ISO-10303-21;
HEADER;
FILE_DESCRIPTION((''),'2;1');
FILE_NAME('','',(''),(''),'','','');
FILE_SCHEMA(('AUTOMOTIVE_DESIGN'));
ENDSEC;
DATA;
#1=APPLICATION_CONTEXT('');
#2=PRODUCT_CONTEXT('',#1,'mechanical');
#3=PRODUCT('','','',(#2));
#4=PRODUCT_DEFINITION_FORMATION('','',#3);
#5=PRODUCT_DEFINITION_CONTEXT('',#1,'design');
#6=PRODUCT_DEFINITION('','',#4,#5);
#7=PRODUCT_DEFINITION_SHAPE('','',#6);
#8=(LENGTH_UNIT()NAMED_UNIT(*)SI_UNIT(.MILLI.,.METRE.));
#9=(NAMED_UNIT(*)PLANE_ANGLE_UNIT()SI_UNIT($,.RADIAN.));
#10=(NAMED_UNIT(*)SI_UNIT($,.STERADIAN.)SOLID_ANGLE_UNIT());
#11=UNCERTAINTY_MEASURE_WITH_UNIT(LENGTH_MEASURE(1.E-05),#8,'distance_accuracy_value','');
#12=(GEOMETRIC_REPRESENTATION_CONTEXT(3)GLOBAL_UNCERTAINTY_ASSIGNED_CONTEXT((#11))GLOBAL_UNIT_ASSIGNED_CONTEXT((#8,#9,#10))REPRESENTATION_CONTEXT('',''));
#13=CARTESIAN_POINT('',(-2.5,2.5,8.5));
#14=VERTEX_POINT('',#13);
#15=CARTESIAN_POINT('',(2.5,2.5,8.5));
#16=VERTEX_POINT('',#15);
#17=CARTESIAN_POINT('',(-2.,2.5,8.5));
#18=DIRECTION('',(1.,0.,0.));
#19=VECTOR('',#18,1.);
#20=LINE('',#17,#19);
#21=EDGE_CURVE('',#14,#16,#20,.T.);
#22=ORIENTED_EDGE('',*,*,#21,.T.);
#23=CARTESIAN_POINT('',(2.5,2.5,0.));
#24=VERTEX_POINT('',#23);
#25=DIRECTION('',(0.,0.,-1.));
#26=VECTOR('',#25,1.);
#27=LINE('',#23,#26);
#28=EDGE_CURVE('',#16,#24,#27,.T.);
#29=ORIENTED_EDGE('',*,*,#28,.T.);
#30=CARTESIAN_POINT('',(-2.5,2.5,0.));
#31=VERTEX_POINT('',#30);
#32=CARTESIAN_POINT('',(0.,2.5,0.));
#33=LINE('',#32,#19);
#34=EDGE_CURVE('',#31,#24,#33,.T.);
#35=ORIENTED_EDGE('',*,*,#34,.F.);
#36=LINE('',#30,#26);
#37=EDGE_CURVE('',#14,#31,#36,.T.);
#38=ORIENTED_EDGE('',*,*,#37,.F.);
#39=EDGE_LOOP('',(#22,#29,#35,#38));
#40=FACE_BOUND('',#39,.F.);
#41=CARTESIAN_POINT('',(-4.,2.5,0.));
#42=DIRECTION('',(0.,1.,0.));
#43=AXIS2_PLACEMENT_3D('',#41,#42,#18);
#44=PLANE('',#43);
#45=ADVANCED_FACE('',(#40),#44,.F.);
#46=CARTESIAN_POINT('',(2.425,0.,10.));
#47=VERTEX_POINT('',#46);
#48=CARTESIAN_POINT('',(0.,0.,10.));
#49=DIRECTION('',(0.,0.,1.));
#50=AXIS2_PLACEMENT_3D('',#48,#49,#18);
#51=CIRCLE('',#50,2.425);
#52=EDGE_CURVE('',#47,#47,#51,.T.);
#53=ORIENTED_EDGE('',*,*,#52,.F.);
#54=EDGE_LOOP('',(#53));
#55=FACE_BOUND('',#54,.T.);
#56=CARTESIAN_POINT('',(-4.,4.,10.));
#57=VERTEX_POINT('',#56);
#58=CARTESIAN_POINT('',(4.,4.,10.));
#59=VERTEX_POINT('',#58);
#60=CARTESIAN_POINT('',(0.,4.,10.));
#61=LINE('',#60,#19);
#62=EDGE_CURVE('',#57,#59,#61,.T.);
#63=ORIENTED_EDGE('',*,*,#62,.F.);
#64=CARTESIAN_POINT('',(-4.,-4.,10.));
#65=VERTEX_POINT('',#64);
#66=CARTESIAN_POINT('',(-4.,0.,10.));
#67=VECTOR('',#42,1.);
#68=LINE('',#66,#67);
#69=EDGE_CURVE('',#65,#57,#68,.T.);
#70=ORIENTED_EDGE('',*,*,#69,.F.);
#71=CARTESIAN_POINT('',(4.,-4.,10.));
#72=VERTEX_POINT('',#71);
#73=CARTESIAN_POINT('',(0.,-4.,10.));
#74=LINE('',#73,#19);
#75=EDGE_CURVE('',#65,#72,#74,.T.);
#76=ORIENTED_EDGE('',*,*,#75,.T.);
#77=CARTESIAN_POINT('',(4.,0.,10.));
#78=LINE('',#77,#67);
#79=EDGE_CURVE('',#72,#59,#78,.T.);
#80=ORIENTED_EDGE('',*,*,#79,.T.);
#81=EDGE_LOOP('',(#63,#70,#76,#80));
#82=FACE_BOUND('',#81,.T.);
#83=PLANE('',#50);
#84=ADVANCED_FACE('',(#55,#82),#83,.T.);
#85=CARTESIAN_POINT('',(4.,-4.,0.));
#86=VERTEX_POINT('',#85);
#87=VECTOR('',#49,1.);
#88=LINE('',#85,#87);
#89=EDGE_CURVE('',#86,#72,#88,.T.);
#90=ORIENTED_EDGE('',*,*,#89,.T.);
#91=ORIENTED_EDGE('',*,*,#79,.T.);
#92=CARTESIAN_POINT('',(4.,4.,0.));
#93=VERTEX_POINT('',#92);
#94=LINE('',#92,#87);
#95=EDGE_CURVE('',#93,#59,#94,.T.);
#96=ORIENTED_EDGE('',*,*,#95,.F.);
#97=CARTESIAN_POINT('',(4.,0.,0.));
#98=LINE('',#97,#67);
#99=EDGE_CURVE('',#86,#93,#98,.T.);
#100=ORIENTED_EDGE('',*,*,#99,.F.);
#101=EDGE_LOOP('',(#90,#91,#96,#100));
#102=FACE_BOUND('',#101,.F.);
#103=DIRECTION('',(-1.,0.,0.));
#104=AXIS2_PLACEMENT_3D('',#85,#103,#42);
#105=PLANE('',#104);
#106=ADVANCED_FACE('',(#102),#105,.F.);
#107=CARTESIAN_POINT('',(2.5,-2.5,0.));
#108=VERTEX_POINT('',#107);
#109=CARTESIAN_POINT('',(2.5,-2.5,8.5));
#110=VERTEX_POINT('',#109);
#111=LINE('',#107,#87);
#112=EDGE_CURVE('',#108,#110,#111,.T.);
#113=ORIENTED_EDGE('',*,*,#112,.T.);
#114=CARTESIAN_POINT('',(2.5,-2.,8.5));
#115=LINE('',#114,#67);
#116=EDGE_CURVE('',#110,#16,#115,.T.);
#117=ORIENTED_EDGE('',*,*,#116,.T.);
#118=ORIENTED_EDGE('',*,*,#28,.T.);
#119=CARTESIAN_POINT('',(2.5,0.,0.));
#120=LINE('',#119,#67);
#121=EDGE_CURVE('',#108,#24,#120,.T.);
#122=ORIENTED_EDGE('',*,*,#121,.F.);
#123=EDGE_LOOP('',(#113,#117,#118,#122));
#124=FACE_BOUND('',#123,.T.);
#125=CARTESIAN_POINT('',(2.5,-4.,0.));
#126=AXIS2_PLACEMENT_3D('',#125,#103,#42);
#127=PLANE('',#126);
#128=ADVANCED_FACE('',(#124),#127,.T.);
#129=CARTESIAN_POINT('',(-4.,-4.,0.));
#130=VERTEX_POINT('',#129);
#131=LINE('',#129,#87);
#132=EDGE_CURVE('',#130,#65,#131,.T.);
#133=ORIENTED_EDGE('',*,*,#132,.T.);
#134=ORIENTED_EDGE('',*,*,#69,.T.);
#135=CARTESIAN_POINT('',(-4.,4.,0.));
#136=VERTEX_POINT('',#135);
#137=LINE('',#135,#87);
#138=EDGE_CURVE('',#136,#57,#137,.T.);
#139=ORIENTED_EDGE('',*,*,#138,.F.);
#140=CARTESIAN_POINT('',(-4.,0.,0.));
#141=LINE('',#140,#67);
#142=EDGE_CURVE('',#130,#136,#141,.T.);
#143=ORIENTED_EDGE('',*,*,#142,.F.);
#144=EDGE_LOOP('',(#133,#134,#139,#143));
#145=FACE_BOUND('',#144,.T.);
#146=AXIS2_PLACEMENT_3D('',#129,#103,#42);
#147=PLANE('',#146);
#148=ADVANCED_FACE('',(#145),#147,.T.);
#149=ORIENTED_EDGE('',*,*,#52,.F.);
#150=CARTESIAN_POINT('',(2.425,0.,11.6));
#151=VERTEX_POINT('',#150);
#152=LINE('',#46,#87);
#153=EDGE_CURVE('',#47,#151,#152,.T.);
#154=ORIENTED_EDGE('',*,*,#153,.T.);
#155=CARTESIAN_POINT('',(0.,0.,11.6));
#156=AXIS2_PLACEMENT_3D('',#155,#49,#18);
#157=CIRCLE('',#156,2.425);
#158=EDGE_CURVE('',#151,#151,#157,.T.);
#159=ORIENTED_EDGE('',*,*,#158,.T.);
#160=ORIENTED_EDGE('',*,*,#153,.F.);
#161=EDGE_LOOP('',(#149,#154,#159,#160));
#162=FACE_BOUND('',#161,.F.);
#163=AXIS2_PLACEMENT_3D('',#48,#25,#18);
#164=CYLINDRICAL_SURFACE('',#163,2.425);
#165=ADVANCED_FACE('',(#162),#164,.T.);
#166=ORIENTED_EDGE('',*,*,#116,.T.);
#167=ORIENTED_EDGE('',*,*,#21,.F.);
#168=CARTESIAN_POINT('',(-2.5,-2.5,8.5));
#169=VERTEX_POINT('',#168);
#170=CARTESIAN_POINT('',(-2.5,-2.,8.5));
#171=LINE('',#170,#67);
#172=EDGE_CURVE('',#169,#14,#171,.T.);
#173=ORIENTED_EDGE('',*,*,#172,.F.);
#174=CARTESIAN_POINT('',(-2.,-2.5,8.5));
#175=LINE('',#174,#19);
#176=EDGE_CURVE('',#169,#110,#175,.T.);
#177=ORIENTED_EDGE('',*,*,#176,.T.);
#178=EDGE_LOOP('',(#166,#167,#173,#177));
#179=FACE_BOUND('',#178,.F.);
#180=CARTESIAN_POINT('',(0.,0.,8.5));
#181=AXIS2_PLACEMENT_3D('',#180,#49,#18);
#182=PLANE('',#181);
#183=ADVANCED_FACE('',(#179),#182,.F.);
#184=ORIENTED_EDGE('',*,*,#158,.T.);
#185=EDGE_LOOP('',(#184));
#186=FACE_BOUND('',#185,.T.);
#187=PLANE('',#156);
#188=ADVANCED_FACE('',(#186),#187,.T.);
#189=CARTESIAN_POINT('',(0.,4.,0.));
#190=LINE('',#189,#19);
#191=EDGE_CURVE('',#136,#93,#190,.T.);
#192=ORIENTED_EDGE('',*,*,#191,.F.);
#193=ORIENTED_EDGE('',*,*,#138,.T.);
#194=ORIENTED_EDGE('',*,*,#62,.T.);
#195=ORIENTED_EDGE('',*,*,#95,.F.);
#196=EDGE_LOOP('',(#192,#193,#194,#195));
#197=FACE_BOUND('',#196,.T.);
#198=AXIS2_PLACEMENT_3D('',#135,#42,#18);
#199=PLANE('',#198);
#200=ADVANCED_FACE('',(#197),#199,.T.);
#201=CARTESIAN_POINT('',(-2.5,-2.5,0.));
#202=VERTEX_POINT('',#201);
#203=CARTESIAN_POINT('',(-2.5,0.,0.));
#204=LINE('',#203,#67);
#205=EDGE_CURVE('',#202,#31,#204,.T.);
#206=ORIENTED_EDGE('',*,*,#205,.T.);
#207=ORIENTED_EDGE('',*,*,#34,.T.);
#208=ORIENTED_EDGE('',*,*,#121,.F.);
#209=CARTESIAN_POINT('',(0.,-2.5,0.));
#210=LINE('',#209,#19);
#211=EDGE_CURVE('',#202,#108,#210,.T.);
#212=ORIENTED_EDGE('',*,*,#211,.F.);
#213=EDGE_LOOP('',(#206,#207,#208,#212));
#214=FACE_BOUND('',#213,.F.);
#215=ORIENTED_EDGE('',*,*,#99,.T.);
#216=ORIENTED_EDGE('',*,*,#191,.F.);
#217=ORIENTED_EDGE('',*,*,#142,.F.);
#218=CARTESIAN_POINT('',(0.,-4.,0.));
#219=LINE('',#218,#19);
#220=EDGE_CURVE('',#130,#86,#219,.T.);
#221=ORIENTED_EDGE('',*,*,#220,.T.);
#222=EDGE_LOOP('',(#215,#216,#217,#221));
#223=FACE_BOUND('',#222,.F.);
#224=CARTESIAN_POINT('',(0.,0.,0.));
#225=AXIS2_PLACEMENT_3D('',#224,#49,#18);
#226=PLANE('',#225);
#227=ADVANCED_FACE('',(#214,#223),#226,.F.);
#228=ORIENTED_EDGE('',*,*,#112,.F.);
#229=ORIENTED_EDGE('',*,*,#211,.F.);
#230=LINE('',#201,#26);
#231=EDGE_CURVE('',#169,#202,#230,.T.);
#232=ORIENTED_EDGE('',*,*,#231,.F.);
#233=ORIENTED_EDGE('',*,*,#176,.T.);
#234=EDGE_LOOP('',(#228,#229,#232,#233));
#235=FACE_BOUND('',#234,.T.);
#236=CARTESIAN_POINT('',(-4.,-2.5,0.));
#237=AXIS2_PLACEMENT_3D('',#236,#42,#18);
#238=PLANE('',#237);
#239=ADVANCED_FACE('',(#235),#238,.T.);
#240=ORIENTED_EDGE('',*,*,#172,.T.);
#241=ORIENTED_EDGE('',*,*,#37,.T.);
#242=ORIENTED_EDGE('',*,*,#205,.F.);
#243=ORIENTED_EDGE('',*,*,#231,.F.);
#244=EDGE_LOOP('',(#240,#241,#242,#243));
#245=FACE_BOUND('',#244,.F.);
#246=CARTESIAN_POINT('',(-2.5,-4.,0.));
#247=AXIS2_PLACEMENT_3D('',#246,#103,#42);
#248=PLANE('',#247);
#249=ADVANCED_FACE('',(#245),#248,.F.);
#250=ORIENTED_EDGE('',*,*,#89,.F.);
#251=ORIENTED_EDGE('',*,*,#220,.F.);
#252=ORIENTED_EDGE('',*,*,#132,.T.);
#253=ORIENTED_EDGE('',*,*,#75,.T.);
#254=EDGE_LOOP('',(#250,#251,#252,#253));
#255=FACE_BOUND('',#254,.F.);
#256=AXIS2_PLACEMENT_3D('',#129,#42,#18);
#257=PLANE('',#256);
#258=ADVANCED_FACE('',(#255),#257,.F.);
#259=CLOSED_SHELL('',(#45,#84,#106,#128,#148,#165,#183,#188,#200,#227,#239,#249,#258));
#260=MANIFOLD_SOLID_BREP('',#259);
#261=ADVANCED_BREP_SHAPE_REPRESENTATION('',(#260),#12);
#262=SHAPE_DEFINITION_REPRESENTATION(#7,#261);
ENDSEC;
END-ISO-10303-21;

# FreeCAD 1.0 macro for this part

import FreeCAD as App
import Part
import Sketcher


def faces_at(feature, points):
    """Names of the faces that lie closest to the given points."""
    faces = feature.Shape.Faces
    near = lambda p: min(range(len(faces)), key=lambda i: faces[i].distToShape(Part.Vertex(*p))[0])
    return sorted({f"Face{near(p) + 1}" for p in points})


def add_polygon(sketch, points):
    """Adds a closed chain of lines whose ends are joined by coincident constraints."""
    first, n = sketch.GeometryCount, len(points)
    for a, b in zip(points, points[1:] + points[:1]):
        sketch.addGeometry(Part.LineSegment(App.Vector(*a, 0), App.Vector(*b, 0)), False)
    for i in range(n):
        sketch.addConstraint(Sketcher.Constraint("Coincident", first + i, 2, first + (i + 1) % n, 1))

doc = App.newDocument("Part")
body = doc.addObject("PartDesign::Body", "Body")

# Sketch on XY plane
sketch1 = doc.addObject("Sketcher::SketchObject", "Sketch")
body.addObject(sketch1)
sketch1.AttachmentSupport = (doc.XY_Plane, [""])
sketch1.MapMode = "FlatFace"
add_polygon(sketch1, [(-4, 4), (-4, -4), (4, -4), (4, 4)])  # lines 0-3
sketch1.addConstraint([
    Sketcher.Constraint("Vertical", 0),
    Sketcher.Constraint("Horizontal", 1),
    Sketcher.Constraint("Vertical", 2),
    Sketcher.Constraint("Horizontal", 3),
    Sketcher.Constraint("Symmetric", 0, 2, 2, 2, -1, 1),
    Sketcher.Constraint("Equal", 3, 0),
    Sketcher.Constraint("DistanceX", 1, 1, 1, 2, 8.0),
])
pad1 = doc.addObject("PartDesign::Pad", "Pad")
body.addObject(pad1)
pad1.Profile = sketch1
pad1.Length = 10
doc.recompute()

thickness = doc.addObject("PartDesign::Thickness", "Thickness")
body.addObject(thickness)
thickness.Base = (pad1, faces_at(pad1, [(0, 0, 0)]))
thickness.Value = 1.5
thickness.Reversed = True
thickness.Join = "Arc"

# Sketch on XY plane
sketch2 = doc.addObject("Sketcher::SketchObject", "Sketch001")
body.addObject(sketch2)
sketch2.AttachmentSupport = (doc.XY_Plane, [""])
sketch2.MapMode = "FlatFace"
sketch2.AttachmentOffset = App.Placement(App.Vector(0, 0, 10), App.Rotation())
sketch2.addGeometry(Part.Circle(App.Vector(0, 0, 0), App.Vector(0, 0, 1), 2.4), False)
sketch2.addConstraint([
    Sketcher.Constraint("Coincident", 0, 3, -1, 1),
    Sketcher.Constraint("Diameter", 0, 4.85),
])
pad2 = doc.addObject("PartDesign::Pad", "Pad001")
body.addObject(pad2)
pad2.Profile = sketch2
pad2.Length = 1.6

doc.recompute()
